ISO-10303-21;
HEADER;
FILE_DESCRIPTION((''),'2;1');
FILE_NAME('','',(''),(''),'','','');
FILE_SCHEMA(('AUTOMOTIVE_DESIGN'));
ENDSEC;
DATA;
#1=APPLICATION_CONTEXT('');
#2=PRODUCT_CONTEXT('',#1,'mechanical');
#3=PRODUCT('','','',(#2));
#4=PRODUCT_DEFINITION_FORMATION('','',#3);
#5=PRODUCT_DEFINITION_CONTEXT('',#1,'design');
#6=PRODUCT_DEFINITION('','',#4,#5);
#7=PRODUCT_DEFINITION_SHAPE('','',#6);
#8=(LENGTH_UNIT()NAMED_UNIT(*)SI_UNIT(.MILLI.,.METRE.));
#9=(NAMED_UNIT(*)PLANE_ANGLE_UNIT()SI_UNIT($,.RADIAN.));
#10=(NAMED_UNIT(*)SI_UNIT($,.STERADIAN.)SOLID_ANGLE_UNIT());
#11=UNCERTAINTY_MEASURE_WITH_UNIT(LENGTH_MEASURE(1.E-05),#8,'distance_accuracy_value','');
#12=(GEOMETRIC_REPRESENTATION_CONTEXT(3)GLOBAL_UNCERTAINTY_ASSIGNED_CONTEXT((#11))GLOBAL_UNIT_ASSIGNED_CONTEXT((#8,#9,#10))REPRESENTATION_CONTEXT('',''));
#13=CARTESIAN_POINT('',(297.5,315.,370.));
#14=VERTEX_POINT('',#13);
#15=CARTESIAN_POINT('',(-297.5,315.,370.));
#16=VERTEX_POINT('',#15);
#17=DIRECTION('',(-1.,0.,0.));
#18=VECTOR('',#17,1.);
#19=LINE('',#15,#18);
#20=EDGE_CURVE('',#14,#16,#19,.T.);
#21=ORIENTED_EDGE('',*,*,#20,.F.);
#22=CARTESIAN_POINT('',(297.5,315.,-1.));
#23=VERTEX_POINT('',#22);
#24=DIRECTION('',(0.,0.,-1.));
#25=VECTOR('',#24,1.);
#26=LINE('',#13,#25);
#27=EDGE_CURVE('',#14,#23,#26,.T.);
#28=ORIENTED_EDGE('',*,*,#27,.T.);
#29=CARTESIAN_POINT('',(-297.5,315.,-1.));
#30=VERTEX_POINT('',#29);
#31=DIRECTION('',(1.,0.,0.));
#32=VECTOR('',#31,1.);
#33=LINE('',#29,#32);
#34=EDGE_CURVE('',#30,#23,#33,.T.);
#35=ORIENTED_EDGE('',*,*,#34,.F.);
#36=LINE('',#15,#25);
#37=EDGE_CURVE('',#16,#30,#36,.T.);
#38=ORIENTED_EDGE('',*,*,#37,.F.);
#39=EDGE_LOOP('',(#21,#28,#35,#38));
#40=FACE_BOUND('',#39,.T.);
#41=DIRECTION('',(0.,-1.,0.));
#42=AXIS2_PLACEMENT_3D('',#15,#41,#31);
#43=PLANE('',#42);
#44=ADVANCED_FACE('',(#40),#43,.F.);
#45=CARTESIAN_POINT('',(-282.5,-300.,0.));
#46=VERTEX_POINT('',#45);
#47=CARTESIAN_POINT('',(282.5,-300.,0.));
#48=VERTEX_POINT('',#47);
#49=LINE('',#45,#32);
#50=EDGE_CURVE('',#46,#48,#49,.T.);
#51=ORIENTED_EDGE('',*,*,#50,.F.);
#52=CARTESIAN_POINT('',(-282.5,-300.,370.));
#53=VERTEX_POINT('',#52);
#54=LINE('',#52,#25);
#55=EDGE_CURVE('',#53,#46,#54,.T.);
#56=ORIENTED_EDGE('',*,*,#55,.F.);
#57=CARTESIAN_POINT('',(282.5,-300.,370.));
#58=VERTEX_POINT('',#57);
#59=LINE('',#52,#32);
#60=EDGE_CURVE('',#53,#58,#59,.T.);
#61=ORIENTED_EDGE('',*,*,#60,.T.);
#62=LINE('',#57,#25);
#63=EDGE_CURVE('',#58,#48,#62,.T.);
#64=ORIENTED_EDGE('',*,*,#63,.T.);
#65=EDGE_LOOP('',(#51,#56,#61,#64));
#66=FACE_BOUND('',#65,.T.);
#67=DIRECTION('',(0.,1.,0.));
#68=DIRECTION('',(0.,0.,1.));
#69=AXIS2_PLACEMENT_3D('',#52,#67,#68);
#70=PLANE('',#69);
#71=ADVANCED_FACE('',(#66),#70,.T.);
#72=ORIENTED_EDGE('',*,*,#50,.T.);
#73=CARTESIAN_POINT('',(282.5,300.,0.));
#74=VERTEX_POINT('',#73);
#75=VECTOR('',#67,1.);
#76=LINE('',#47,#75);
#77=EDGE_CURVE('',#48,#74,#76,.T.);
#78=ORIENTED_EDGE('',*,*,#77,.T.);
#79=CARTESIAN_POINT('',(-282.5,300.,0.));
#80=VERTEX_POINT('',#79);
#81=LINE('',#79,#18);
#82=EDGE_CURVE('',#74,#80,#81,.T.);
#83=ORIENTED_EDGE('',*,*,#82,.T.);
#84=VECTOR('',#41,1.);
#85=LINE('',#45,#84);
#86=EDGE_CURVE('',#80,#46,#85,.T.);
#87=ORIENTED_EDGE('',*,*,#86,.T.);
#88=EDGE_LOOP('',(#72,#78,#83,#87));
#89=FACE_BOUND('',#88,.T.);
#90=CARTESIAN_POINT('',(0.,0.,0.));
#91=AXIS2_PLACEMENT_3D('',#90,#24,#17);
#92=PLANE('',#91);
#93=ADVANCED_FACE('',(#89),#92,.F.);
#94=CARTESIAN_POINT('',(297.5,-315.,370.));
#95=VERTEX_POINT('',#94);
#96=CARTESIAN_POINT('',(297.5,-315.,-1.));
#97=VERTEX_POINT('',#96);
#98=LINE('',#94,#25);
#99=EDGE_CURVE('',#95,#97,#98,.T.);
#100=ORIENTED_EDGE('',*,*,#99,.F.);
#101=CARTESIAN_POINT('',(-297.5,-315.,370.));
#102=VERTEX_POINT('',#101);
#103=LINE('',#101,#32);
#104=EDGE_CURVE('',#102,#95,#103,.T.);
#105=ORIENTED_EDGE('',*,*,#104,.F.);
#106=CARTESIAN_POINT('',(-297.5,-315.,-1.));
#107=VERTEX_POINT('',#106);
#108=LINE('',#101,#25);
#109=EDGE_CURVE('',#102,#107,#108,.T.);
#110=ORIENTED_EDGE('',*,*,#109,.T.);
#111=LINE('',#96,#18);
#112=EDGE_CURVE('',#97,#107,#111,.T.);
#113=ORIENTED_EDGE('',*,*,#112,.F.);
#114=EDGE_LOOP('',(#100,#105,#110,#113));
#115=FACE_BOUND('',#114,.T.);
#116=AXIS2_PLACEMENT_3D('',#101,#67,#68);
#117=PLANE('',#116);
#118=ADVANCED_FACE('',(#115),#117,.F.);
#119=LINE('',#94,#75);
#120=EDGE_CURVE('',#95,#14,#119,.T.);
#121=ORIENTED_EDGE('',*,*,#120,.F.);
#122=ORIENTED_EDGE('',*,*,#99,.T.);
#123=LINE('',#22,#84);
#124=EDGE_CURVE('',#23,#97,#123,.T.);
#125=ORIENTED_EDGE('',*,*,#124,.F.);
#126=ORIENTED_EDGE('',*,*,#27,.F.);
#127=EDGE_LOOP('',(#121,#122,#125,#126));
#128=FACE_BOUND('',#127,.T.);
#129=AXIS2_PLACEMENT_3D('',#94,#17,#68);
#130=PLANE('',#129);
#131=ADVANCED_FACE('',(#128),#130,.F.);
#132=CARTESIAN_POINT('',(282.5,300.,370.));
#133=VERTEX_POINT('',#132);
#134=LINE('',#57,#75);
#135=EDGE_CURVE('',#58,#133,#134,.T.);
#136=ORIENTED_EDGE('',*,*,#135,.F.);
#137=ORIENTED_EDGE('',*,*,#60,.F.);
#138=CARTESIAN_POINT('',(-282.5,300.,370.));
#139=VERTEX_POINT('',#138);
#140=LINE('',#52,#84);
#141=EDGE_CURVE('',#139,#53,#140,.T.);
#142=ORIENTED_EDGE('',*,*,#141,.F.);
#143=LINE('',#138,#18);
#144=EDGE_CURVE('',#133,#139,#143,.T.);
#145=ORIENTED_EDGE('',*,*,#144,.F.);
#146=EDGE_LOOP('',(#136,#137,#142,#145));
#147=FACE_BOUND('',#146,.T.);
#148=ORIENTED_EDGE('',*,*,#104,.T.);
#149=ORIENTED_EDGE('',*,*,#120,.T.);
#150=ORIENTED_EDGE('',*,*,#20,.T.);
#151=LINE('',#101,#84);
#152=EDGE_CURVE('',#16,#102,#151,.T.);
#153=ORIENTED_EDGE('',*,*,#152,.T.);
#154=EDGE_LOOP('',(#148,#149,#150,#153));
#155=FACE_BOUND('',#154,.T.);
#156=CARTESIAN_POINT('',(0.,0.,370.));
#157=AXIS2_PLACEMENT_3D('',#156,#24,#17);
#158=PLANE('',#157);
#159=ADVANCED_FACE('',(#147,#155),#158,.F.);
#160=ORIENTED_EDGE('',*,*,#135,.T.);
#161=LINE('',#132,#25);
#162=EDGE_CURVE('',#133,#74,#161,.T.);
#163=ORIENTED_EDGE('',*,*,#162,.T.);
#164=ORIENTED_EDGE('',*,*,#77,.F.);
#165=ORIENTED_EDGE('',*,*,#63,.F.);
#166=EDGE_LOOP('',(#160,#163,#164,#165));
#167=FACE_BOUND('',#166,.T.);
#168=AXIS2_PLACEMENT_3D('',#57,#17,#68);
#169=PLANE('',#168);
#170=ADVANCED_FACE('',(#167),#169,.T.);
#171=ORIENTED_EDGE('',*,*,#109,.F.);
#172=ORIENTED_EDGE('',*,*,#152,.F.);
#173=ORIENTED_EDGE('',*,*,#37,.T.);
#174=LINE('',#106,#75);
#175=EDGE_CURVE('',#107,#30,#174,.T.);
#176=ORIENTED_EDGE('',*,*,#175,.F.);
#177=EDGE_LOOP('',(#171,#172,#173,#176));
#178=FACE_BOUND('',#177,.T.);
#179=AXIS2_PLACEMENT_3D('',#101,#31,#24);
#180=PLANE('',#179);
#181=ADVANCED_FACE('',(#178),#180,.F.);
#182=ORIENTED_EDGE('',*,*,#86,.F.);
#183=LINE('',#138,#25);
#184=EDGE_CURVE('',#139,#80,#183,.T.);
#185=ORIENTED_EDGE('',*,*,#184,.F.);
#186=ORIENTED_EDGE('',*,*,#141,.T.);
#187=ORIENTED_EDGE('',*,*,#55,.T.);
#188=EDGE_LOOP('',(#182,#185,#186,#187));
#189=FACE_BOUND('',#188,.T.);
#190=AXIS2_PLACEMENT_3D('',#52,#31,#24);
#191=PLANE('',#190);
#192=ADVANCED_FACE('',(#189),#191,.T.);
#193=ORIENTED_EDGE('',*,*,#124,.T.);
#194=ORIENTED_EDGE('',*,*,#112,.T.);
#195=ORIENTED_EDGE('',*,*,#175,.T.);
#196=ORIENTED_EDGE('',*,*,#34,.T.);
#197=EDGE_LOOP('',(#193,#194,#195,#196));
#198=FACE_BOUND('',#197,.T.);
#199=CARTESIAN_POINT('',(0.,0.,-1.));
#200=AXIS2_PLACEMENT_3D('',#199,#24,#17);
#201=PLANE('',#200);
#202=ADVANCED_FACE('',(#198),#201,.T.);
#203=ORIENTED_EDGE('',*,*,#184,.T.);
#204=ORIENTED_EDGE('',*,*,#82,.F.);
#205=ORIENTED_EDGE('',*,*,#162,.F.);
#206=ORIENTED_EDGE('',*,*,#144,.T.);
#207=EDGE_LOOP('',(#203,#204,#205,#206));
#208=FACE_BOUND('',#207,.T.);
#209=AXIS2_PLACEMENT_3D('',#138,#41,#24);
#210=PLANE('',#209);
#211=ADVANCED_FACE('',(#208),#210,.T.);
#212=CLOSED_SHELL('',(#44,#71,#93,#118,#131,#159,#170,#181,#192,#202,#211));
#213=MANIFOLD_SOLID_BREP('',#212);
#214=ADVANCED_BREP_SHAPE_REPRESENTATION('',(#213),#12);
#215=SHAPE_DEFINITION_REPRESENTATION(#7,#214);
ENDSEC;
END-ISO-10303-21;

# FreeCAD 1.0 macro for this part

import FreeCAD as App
import Part
import Sketcher


def add_polygon(sketch, points):
    """Adds a closed chain of lines whose ends are joined by coincident constraints."""
    first, n = sketch.GeometryCount, len(points)
    for a, b in zip(points, points[1:] + points[:1]):
        sketch.addGeometry(Part.LineSegment(App.Vector(*a, 0), App.Vector(*b, 0)), False)
    for i in range(n):
        sketch.addConstraint(Sketcher.Constraint("Coincident", first + i, 2, first + (i + 1) % n, 1))

doc = App.newDocument("Part")
body = doc.addObject("PartDesign::Body", "Body")

# Sketch on XY plane
sketch1 = body.newObject("Sketcher::SketchObject", "Sketch")
sketch1.AttachmentSupport = (doc.getObject("XY_Plane"), [""])
sketch1.MapMode = "FlatFace"
add_polygon(sketch1, [(-298, 315), (-298, -315), (298, -315), (298, 315)])  # lines 0-3
add_polygon(sketch1, [(282, -300), (-282, -300), (-282, 300), (282, 300)])  # lines 4-7
sketch1.addConstraint(Sketcher.Constraint("Vertical", 0))
sketch1.addConstraint(Sketcher.Constraint("Horizontal", 1))
sketch1.addConstraint(Sketcher.Constraint("Vertical", 2))
sketch1.addConstraint(Sketcher.Constraint("Horizontal", 3))
sketch1.addConstraint(Sketcher.Constraint("Horizontal", 4))
sketch1.addConstraint(Sketcher.Constraint("Vertical", 5))
sketch1.addConstraint(Sketcher.Constraint("Horizontal", 6))
sketch1.addConstraint(Sketcher.Constraint("Vertical", 7))
sketch1.addConstraint(Sketcher.Constraint("Symmetric", 0, 2, 2, 2, -1, 1))
sketch1.addConstraint(Sketcher.Constraint("Symmetric", 4, 2, 6, 2, -1, 1))
sketch1.addConstraint(Sketcher.Constraint("DistanceX", 1, 1, 1, 2, 595.0))
sketch1.addConstraint(Sketcher.Constraint("DistanceX", 4, 2, 4, 1, 565.0))
sketch1.addConstraint(Sketcher.Constraint("DistanceY", 0, 2, 0, 1, 630.0))
sketch1.addConstraint(Sketcher.Constraint("DistanceY", 5, 1, 5, 2, 600.0))
pad1 = body.newObject("PartDesign::Pad", "Pad")
pad1.Profile = sketch1
pad1.Length = 370

# Sketch on XY plane
sketch2 = body.newObject("Sketcher::SketchObject", "Sketch001")
sketch2.AttachmentSupport = (doc.getObject("XY_Plane"), [""])
sketch2.MapMode = "FlatFace"
add_polygon(sketch2, [(298, 315), (298, -315), (-298, -315), (-298, 315)])  # lines 0-3
sketch2.addConstraint(Sketcher.Constraint("Vertical", 0))
sketch2.addConstraint(Sketcher.Constraint("Horizontal", 1))
sketch2.addConstraint(Sketcher.Constraint("Vertical", 2))
sketch2.addConstraint(Sketcher.Constraint("Horizontal", 3))
sketch2.addConstraint(Sketcher.Constraint("Symmetric", 0, 2, 2, 2, -1, 1))
sketch2.addConstraint(Sketcher.Constraint("DistanceX", 1, 2, 1, 1, 595.0))
sketch2.addConstraint(Sketcher.Constraint("DistanceY", 0, 2, 0, 1, 630.0))
pad2 = body.newObject("PartDesign::Pad", "Pad001")
pad2.Profile = sketch2
pad2.Length = 1
pad2.Reversed = True

doc.recompute()
